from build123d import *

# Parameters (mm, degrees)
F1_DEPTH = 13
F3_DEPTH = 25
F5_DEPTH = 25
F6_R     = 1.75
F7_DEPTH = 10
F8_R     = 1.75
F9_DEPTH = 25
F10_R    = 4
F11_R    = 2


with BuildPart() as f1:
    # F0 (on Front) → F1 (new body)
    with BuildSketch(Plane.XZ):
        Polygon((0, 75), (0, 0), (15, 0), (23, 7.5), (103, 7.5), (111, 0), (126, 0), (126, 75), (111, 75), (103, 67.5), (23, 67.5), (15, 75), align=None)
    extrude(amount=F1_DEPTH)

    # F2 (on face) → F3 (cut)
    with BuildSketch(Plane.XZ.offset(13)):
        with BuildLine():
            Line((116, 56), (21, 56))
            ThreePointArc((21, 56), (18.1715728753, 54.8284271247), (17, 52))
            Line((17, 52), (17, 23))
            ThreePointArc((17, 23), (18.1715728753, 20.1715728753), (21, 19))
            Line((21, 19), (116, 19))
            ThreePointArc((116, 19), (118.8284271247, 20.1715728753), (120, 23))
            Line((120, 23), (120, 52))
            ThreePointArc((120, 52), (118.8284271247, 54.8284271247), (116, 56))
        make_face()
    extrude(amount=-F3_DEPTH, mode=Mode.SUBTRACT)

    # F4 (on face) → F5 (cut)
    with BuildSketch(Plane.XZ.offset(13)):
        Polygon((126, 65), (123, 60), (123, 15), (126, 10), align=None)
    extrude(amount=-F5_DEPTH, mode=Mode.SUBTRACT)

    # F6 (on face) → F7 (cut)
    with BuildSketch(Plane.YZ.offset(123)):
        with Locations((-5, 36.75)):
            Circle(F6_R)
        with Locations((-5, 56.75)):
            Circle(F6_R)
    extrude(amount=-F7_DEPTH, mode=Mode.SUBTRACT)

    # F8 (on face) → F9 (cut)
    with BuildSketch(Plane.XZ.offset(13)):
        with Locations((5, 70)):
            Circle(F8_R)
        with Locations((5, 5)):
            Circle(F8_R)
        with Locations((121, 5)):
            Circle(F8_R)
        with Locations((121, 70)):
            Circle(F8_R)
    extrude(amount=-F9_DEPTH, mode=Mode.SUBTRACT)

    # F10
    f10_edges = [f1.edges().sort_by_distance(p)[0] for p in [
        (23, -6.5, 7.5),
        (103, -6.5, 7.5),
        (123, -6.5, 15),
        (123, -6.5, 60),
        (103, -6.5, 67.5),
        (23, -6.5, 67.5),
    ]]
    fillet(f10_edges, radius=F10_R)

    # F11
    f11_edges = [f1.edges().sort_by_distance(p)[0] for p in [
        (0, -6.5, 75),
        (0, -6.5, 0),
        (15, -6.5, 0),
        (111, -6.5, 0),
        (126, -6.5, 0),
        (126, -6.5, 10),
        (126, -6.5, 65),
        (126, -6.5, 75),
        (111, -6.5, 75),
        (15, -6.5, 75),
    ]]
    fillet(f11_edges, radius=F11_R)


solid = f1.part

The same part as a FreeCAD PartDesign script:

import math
import FreeCAD as App
import Part
import Sketcher

V = App.Vector


def edges_at(feature, points):
    """Names of the edges that pass closest to the given points."""
    edges = feature.Shape.Edges
    near = lambda p: min(range(len(edges)), key=lambda i: edges[i].distToShape(Part.Vertex(*p))[0])
    return sorted({f"Edge{near(p) + 1}" for p in points})

doc = App.newDocument("Part")
body = doc.addObject("PartDesign::Body", "Body")

# Sketch on XZ plane
sketch1 = doc.addObject("Sketcher::SketchObject", "Sketch")
body.addObject(sketch1)
sketch1.AttachmentSupport = (doc.XZ_Plane, [""])
sketch1.MapMode = "FlatFace"
sketch1.addGeometry(Part.LineSegment(V(0, 75, 0), V(0, 0, 0)), False)
sketch1.addGeometry(Part.LineSegment(V(0, 0, 0), V(15, 0, 0)), False)
sketch1.addGeometry(Part.LineSegment(V(15, 0, 0), V(23, 7.5, 0)), False)
sketch1.addGeometry(Part.LineSegment(V(23, 7.5, 0), V(103, 7.5, 0)), False)
sketch1.addGeometry(Part.LineSegment(V(103, 7.5, 0), V(111, 0, 0)), False)
sketch1.addGeometry(Part.LineSegment(V(111, 0, 0), V(126, 0, 0)), False)
sketch1.addGeometry(Part.LineSegment(V(126, 0, 0), V(126, 75, 0)), False)
sketch1.addGeometry(Part.LineSegment(V(126, 75, 0), V(111, 75, 0)), False)
sketch1.addGeometry(Part.LineSegment(V(111, 75, 0), V(103, 67.5, 0)), False)
sketch1.addGeometry(Part.LineSegment(V(103, 67.5, 0), V(23, 67.5, 0)), False)
sketch1.addGeometry(Part.LineSegment(V(23, 67.5, 0), V(15, 75, 0)), False)
sketch1.addGeometry(Part.LineSegment(V(15, 75, 0), V(0, 75, 0)), False)
sketch1.addConstraint(Sketcher.Constraint("Coincident", 0, 2, 1, 1))
sketch1.addConstraint(Sketcher.Constraint("Coincident", 1, 2, 2, 1))
sketch1.addConstraint(Sketcher.Constraint("Coincident", 2, 2, 3, 1))
sketch1.addConstraint(Sketcher.Constraint("Coincident", 3, 2, 4, 1))
sketch1.addConstraint(Sketcher.Constraint("Coincident", 4, 2, 5, 1))
sketch1.addConstraint(Sketcher.Constraint("Coincident", 5, 2, 6, 1))
sketch1.addConstraint(Sketcher.Constraint("Coincident", 6, 2, 7, 1))
sketch1.addConstraint(Sketcher.Constraint("Coincident", 7, 2, 8, 1))
sketch1.addConstraint(Sketcher.Constraint("Coincident", 8, 2, 9, 1))
sketch1.addConstraint(Sketcher.Constraint("Coincident", 9, 2, 10, 1))
sketch1.addConstraint(Sketcher.Constraint("Coincident", 10, 2, 11, 1))
sketch1.addConstraint(Sketcher.Constraint("Coincident", 11, 2, 0, 1))
sketch1.addConstraint(Sketcher.Constraint("Vertical", 0))
sketch1.addConstraint(Sketcher.Constraint("Horizontal", 1))
sketch1.addConstraint(Sketcher.Constraint("Horizontal", 3))
sketch1.addConstraint(Sketcher.Constraint("Horizontal", 5))
sketch1.addConstraint(Sketcher.Constraint("Vertical", 6))
sketch1.addConstraint(Sketcher.Constraint("Horizontal", 7))
sketch1.addConstraint(Sketcher.Constraint("Horizontal", 9))
sketch1.addConstraint(Sketcher.Constraint("Horizontal", 11))
sketch1.addConstraint(Sketcher.Constraint("Coincident", 0, 2, -1, 1))
sketch1.addConstraint(Sketcher.Constraint("PointOnObject", 4, 2, -1))
sketch1.addConstraint(Sketcher.Constraint("Parallel", 2, 8))
sketch1.addConstraint(Sketcher.Constraint("Parallel", 4, 10))
sketch1.addConstraint(Sketcher.Constraint("Horizontal", 7, 2, 10, 2))
sketch1.addConstraint(Sketcher.Constraint("Vertical", 4, 2, 7, 2))
sketch1.addConstraint(Sketcher.Constraint("Vertical", 3, 2, 8, 2))
sketch1.addConstraint(Sketcher.Constraint("Vertical", 2, 2, 9, 2))
sketch1.addConstraint(Sketcher.Constraint("Vertical", 1, 2, 10, 2))
sketch1.addConstraint(Sketcher.Constraint("Equal", 1, 5))
sketch1.addConstraint(Sketcher.Constraint("DistanceX", 1, 1, 1, 2, 15.0))
sketch1.addConstraint(Sketcher.Constraint("DistanceX", 3, 1, 3, 2, 80.0))
sketch1.addConstraint(Sketcher.Constraint("DistanceY", 0, 2, 0, 1, 75.0))
sketch1.addConstraint(Sketcher.Constraint("DistanceX", -1, 1, 2, 2, 23.0))
sketch1.addConstraint(Sketcher.Constraint("DistanceY", 3, 2, 8, 2, 60.0))
pad1 = doc.addObject("PartDesign::Pad", "Pad")
body.addObject(pad1)
pad1.Profile = sketch1
pad1.Length = 13

# Sketch on XZ plane
sketch2 = doc.addObject("Sketcher::SketchObject", "Sketch001")
body.addObject(sketch2)
sketch2.AttachmentSupport = (doc.XZ_Plane, [""])
sketch2.MapMode = "FlatFace"
sketch2.AttachmentOffset = App.Placement(V(0, 0, 13), App.Rotation())
sketch2.addGeometry(Part.LineSegment(V(116, 56, 0), V(21, 56, 0)), False)
sketch2.addGeometry(Part.ArcOfCircle(Part.Circle(V(21, 52, 0), V(0, 0, 1), 4), math.radians(90), math.radians(180)), False)
sketch2.addGeometry(Part.LineSegment(V(17, 52, 0), V(17, 23, 0)), False)
sketch2.addGeometry(Part.ArcOfCircle(Part.Circle(V(21, 23, 0), V(0, 0, 1), 4), math.radians(180), math.radians(270)), False)
sketch2.addGeometry(Part.LineSegment(V(21, 19, 0), V(116, 19, 0)), False)
sketch2.addGeometry(Part.ArcOfCircle(Part.Circle(V(116, 23, 0), V(0, 0, 1), 4), math.radians(-90), math.radians(0)), False)
sketch2.addGeometry(Part.LineSegment(V(120, 23, 0), V(120, 52, 0)), False)
sketch2.addGeometry(Part.ArcOfCircle(Part.Circle(V(116, 52, 0), V(0, 0, 1), 4), math.radians(0), math.radians(90)), False)
sketch2.addConstraint(Sketcher.Constraint("Tangent", 0, 2, 1, 1))
sketch2.addConstraint(Sketcher.Constraint("Tangent", 1, 2, 2, 1))
sketch2.addConstraint(Sketcher.Constraint("Tangent", 2, 2, 3, 1))
sketch2.addConstraint(Sketcher.Constraint("Tangent", 3, 2, 4, 1))
sketch2.addConstraint(Sketcher.Constraint("Tangent", 4, 2, 5, 1))
sketch2.addConstraint(Sketcher.Constraint("Tangent", 5, 2, 6, 1))
sketch2.addConstraint(Sketcher.Constraint("Tangent", 6, 2, 7, 1))
sketch2.addConstraint(Sketcher.Constraint("Tangent", 7, 2, 0, 1))
sketch2.addConstraint(Sketcher.Constraint("Horizontal", 0))
sketch2.addConstraint(Sketcher.Constraint("Vertical", 2))
sketch2.addConstraint(Sketcher.Constraint("Horizontal", 4))
sketch2.addConstraint(Sketcher.Constraint("Vertical", 6))
sketch2.addConstraint(Sketcher.Constraint("Equal", 1, 3))
sketch2.addConstraint(Sketcher.Constraint("Equal", 3, 5))
sketch2.addConstraint(Sketcher.Constraint("Equal", 5, 7))
sketch2.addConstraint(Sketcher.Constraint("Radius", 1, 4.0))
sketch2.addConstraint(Sketcher.Constraint("DistanceX", 0, 2, 0, 1, 95.0))
sketch2.addConstraint(Sketcher.Constraint("DistanceY", 2, 2, 2, 1, 29.0))
sketch2.addConstraint(Sketcher.Constraint("DistanceX", -1, 1, 1, 3, 21.0))
sketch2.addConstraint(Sketcher.Constraint("DistanceY", -1, 1, 1, 3, 52.0))
pocket1 = doc.addObject("PartDesign::Pocket", "Pocket")
body.addObject(pocket1)
pocket1.Profile = sketch2
pocket1.Length = 25

# Sketch on XZ plane
sketch3 = doc.addObject("Sketcher::SketchObject", "Sketch002")
body.addObject(sketch3)
sketch3.AttachmentSupport = (doc.XZ_Plane, [""])
sketch3.MapMode = "FlatFace"
sketch3.AttachmentOffset = App.Placement(V(0, 0, 13), App.Rotation())
sketch3.addGeometry(Part.LineSegment(V(126, 65, 0), V(123, 60, 0)), False)
sketch3.addGeometry(Part.LineSegment(V(123, 60, 0), V(123, 15, 0)), False)
sketch3.addGeometry(Part.LineSegment(V(123, 15, 0), V(126, 10, 0)), False)
sketch3.addGeometry(Part.LineSegment(V(126, 10, 0), V(126, 65, 0)), False)
sketch3.addConstraint(Sketcher.Constraint("Coincident", 0, 2, 1, 1))
sketch3.addConstraint(Sketcher.Constraint("Coincident", 1, 2, 2, 1))
sketch3.addConstraint(Sketcher.Constraint("Coincident", 2, 2, 3, 1))
sketch3.addConstraint(Sketcher.Constraint("Coincident", 3, 2, 0, 1))
sketch3.addConstraint(Sketcher.Constraint("Vertical", 1))
sketch3.addConstraint(Sketcher.Constraint("Vertical", 3))
sketch3.addConstraint(Sketcher.Constraint("Equal", 0, 2))
sketch3.addConstraint(Sketcher.Constraint("DistanceY", 1, 2, 1, 1, 45.0))
sketch3.addConstraint(Sketcher.Constraint("DistanceY", 3, 1, 3, 2, 55.0))
sketch3.addConstraint(Sketcher.Constraint("DistanceX", -1, 1, 0, 2, 123.0))
sketch3.addConstraint(Sketcher.Constraint("DistanceY", -1, 1, 0, 2, 60.0))
sketch3.addConstraint(Sketcher.Constraint("DistanceX", -1, 1, 2, 2, 126.0))
pocket2 = doc.addObject("PartDesign::Pocket", "Pocket001")
body.addObject(pocket2)
pocket2.Profile = sketch3
pocket2.Length = 25

# Sketch on YZ plane
sketch4 = doc.addObject("Sketcher::SketchObject", "Sketch003")
body.addObject(sketch4)
sketch4.AttachmentSupport = (doc.YZ_Plane, [""])
sketch4.MapMode = "FlatFace"
sketch4.AttachmentOffset = App.Placement(V(0, 0, 123), App.Rotation())
sketch4.addGeometry(Part.Circle(V(-5, 36.75, 0), V(0, 0, 1), 1.75), False)
sketch4.addGeometry(Part.Circle(V(-5, 56.75, 0), V(0, 0, 1), 1.75), False)
sketch4.addConstraint(Sketcher.Constraint("Equal", 0, 1))
sketch4.addConstraint(Sketcher.Constraint("Vertical", 0, 3, 1, 3))
sketch4.addConstraint(Sketcher.Constraint("Diameter", 0, 3.5))
sketch4.addConstraint(Sketcher.Constraint("DistanceX", 0, 3, -1, 1, 5.0))
sketch4.addConstraint(Sketcher.Constraint("DistanceY", 0, 3, 1, 3, 20.0))
sketch4.addConstraint(Sketcher.Constraint("DistanceY", -1, 1, 0, 3, 36.75))
pocket3 = doc.addObject("PartDesign::Pocket", "Pocket002")
body.addObject(pocket3)
pocket3.Profile = sketch4
pocket3.Length = 10

# Sketch on XZ plane
sketch5 = doc.addObject("Sketcher::SketchObject", "Sketch004")
body.addObject(sketch5)
sketch5.AttachmentSupport = (doc.XZ_Plane, [""])
sketch5.MapMode = "FlatFace"
sketch5.AttachmentOffset = App.Placement(V(0, 0, 13), App.Rotation())
sketch5.addGeometry(Part.Circle(V(5, 70, 0), V(0, 0, 1), 1.75), False)
sketch5.addGeometry(Part.Circle(V(5, 5, 0), V(0, 0, 1), 1.75), False)
sketch5.addGeometry(Part.Circle(V(121, 5, 0), V(0, 0, 1), 1.75), False)
sketch5.addGeometry(Part.Circle(V(121, 70, 0), V(0, 0, 1), 1.75), False)
sketch5.addConstraint(Sketcher.Constraint("Equal", 0, 1))
sketch5.addConstraint(Sketcher.Constraint("Equal", 1, 2))
sketch5.addConstraint(Sketcher.Constraint("Equal", 2, 3))
sketch5.addConstraint(Sketcher.Constraint("Horizontal", 1, 3, 2, 3))
sketch5.addConstraint(Sketcher.Constraint("Horizontal", 0, 3, 3, 3))
sketch5.addConstraint(Sketcher.Constraint("Vertical", 0, 3, 1, 3))
sketch5.addConstraint(Sketcher.Constraint("Vertical", 2, 3, 3, 3))
sketch5.addConstraint(Sketcher.Constraint("Diameter", 0, 3.5))
sketch5.addConstraint(Sketcher.Constraint("DistanceX", -1, 1, 0, 3, 5.0))
sketch5.addConstraint(Sketcher.Constraint("DistanceY", -1, 1, 0, 3, 70.0))
sketch5.addConstraint(Sketcher.Constraint("DistanceY", -1, 1, 1, 3, 5.0))
sketch5.addConstraint(Sketcher.Constraint("DistanceX", -1, 1, 2, 3, 121.0))
pocket4 = doc.addObject("PartDesign::Pocket", "Pocket003")
body.addObject(pocket4)
pocket4.Profile = sketch5
pocket4.Length = 25
doc.recompute()

fillet = doc.addObject("PartDesign::Fillet", "Fillet")
body.addObject(fillet)
fillet.Base = (pocket4, edges_at(pocket4, [
    (23, -6.5, 7.5),
    (103, -6.5, 7.5),
    (123, -6.5, 15),
    (123, -6.5, 60),
    (103, -6.5, 67.5),
    (23, -6.5, 67.5),
]))
fillet.Radius = 4
doc.recompute()

fillet2 = doc.addObject("PartDesign::Fillet", "Fillet001")
body.addObject(fillet2)
fillet2.Base = (fillet, edges_at(fillet, [
    (0, -6.5, 75),
    (0, -6.5, 0),
    (15, -6.5, 0),
    (111, -6.5, 0),
    (126, -6.5, 0),
    (126, -6.5, 10),
    (126, -6.5, 65),
    (126, -6.5, 75),
    (111, -6.5, 75),
    (15, -6.5, 75),
]))
fillet2.Radius = 2

doc.recompute()
